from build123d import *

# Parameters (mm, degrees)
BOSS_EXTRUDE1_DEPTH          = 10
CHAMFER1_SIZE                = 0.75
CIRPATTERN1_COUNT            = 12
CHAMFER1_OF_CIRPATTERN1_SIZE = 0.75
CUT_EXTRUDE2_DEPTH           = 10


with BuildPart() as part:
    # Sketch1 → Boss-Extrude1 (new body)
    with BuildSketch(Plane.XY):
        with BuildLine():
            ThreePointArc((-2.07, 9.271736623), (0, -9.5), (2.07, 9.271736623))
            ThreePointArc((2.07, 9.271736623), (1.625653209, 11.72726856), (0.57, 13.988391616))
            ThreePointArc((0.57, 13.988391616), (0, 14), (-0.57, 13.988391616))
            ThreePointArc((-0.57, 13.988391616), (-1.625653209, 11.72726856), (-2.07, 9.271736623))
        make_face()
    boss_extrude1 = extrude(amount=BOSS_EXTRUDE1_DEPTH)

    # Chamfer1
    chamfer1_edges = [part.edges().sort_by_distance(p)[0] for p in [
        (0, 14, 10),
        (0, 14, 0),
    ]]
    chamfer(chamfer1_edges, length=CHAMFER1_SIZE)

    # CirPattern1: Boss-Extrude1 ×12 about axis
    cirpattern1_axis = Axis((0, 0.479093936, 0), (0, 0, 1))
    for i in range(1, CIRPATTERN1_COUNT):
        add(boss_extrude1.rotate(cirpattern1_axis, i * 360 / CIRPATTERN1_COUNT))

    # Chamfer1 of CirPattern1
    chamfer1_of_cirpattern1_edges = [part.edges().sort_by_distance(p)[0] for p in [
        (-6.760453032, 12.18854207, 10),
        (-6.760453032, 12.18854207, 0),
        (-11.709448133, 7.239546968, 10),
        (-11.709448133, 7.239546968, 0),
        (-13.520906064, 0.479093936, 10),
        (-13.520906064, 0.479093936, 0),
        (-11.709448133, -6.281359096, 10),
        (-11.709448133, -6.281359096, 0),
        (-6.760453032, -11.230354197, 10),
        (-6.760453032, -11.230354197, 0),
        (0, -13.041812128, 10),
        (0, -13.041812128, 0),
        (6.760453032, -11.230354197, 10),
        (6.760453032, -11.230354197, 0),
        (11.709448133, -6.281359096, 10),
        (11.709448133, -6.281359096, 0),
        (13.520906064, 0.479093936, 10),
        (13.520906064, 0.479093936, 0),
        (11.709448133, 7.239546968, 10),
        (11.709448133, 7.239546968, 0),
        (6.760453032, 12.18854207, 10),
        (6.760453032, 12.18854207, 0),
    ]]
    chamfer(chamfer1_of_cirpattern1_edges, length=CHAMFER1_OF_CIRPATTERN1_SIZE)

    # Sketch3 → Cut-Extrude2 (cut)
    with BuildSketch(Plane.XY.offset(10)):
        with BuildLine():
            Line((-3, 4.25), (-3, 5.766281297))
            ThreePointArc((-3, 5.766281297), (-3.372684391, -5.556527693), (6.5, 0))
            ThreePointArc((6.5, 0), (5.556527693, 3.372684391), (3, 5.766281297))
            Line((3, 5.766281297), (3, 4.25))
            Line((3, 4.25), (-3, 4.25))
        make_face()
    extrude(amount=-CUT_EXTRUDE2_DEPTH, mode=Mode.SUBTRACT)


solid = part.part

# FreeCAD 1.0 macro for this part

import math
import FreeCAD as App
import Part
import Sketcher
from FreeCAD import Vector
Q = App.Units.Quantity


def edges_at(feature, points):
    """Names of the edges that pass closest to the given points."""
    edges = feature.Shape.Edges
    near = lambda p: min(range(len(edges)), key=lambda i: edges[i].distToShape(Part.Vertex(*p))[0])
    return sorted({f"Edge{near(p) + 1}" for p in points})

doc = App.newDocument("Part")
params = doc.addObject("Spreadsheet::Sheet", "Params")
for row, (alias, value) in enumerate([
    ("sketch1_radius", "14 mm"),
    ("sketch1_radius2", "9.5 mm"),
    ("pad1_length", "10 mm"),
    ("chamfer_size", "0.75 mm"),
    ("chamfer2_size", "0.75 mm"),
    ("sketch2_radius", "6.5 mm"),
    ("sketch2_width", "6 mm"),
    ("pocket1_length", "10 mm"),
], start=1):
    params.set(f"A{row}", alias)
    params.set(f"B{row}", "=" + value)
    params.setAlias(f"B{row}", alias)

body = doc.addObject("PartDesign::Body", "Body")

# Sketch on XY plane
sketch1 = body.newObject("Sketcher::SketchObject", "Sketch")
sketch1.AttachmentSupport = (doc.getObject("XY_Plane"), [""])
sketch1.MapMode = "FlatFace"
sketch1.addGeometry(Part.ArcOfCircle(Part.Circle(Vector(0, 0, 0), Vector(0, 0, 1), 9.5), math.radians(103), math.radians(437)), False)
sketch1.addGeometry(Part.ArcOfCircle(Part.Circle(Vector(-7.6, 8.8, 0), Vector(0, 0, 1), 9.7), math.radians(3), math.radians(32)), False)
sketch1.addGeometry(Part.ArcOfCircle(Part.Circle(Vector(0, 0, 0), Vector(0, 0, 1), 14), math.radians(87.67), math.radians(92.33)), False)
sketch1.addGeometry(Part.ArcOfCircle(Part.Circle(Vector(7.6, 8.8, 0), Vector(0, 0, 1), 9.7), math.radians(148), math.radians(177)), False)
sketch1.addConstraint(Sketcher.Constraint("Coincident", 0, 2, 1, 1))
sketch1.addConstraint(Sketcher.Constraint("Coincident", 1, 2, 2, 1))
sketch1.addConstraint(Sketcher.Constraint("Coincident", 2, 2, 3, 1))
sketch1.addConstraint(Sketcher.Constraint("Coincident", 3, 2, 0, 1))
sketch1.addConstraint(Sketcher.Constraint("Coincident", 0, 3, -1, 1))
sketch1.addConstraint(Sketcher.Constraint("Coincident", 2, 3, -1, 1))
sketch1.addConstraint(Sketcher.Constraint("Equal", 1, 3))
sketch1.addConstraint(Sketcher.Constraint("Symmetric", 1, 3, 3, 3, -2))
sketch1.addConstraint(Sketcher.Constraint("Radius", 2, Q("14 mm")))
sketch1.addConstraint(Sketcher.Constraint("Radius", 0, Q("9.5 mm")))
sketch1.addConstraint(Sketcher.Constraint("DistanceX", 1, 2, 0, 2, Q("1.5 mm")))
sketch1.addConstraint(Sketcher.Constraint("DistanceX", -1, 1, 0, 2, Q("2.07 mm")))
sketch1.addConstraint(Sketcher.Constraint("Radius", 1, Q("9.70744 mm")))
sketch1.setExpression("Constraints[8]", "Params.sketch1_radius")
sketch1.setExpression("Constraints[9]", "Params.sketch1_radius2")
pad1 = body.newObject("PartDesign::Pad", "Pad")
pad1.Profile = sketch1
pad1.setExpression("Length", "Params.pad1_length")
doc.recompute()

chamfer = body.newObject("PartDesign::Chamfer", "Chamfer")
chamfer.Base = (pad1, edges_at(pad1, [(0, 14, 10), (0, 14, 0)]))
chamfer.setExpression("Size", "Params.chamfer_size")
doc.recompute()

datumline = body.newObject("PartDesign::Line", "DatumLine")
datumline.Placement = App.Placement(Vector(0, 0.479094, 0), App.Rotation(Vector(0, 0, 1), Vector(0, 0, 1)))
polarpattern = body.newObject("PartDesign::PolarPattern", "PolarPattern")
polarpattern.Originals = [pad1]
polarpattern.Axis = (datumline, [""])
polarpattern.Angle = 360
polarpattern.Occurrences = 12
body.Tip = polarpattern
doc.recompute()

chamfer2 = body.newObject("PartDesign::Chamfer", "Chamfer001")
chamfer2.Base = (polarpattern, edges_at(polarpattern, [
    (-6.76, 12.189, 10),
    (-6.76, 12.189, 0),
    (-11.709, 7.24, 10),
    (-11.709, 7.24, 0),
    (-13.521, 0.479, 10),
    (-13.521, 0.479, 0),
    (-11.709, -6.281, 10),
    (-11.709, -6.281, 0),
    (-6.76, -11.23, 10),
    (-6.76, -11.23, 0),
    (0, -13.042, 10),
    (0, -13.042, 0),
    (6.76, -11.23, 10),
    (6.76, -11.23, 0),
    (11.709, -6.281, 10),
    (11.709, -6.281, 0),
    (13.521, 0.479, 10),
    (13.521, 0.479, 0),
    (11.709, 7.24, 10),
    (11.709, 7.24, 0),
    (6.76, 12.189, 10),
    (6.76, 12.189, 0),
]))
chamfer2.setExpression("Size", "Params.chamfer2_size")

# Sketch on XY plane
sketch2 = body.newObject("Sketcher::SketchObject", "Sketch001")
sketch2.AttachmentSupport = (doc.getObject("XY_Plane"), [""])
sketch2.MapMode = "FlatFace"
sketch2.AttachmentOffset = App.Placement(Vector(0, 0, 10), App.Rotation())
sketch2.addGeometry(Part.LineSegment(Vector(-3, 4.2, 0), Vector(-3, 5.8, 0)), False)
sketch2.addGeometry(Part.ArcOfCircle(Part.Circle(Vector(0, 0, 0), Vector(0, 0, 1), 6.5), math.radians(117), math.radians(360)), False)
sketch2.addGeometry(Part.ArcOfCircle(Part.Circle(Vector(0, 0, 0), Vector(0, 0, 1), 6.5), math.radians(0), math.radians(63)), False)
sketch2.addGeometry(Part.LineSegment(Vector(3, 5.8, 0), Vector(3, 4.2, 0)), False)
sketch2.addGeometry(Part.LineSegment(Vector(3, 4.2, 0), Vector(-3, 4.2, 0)), False)
sketch2.addConstraint(Sketcher.Constraint("Coincident", 0, 2, 1, 1))
sketch2.addConstraint(Sketcher.Constraint("Tangent", 1, 2, 2, 1))
sketch2.addConstraint(Sketcher.Constraint("Coincident", 2, 2, 3, 1))
sketch2.addConstraint(Sketcher.Constraint("Coincident", 3, 2, 4, 1))
sketch2.addConstraint(Sketcher.Constraint("Coincident", 4, 2, 0, 1))
sketch2.addConstraint(Sketcher.Constraint("Vertical", 0))
sketch2.addConstraint(Sketcher.Constraint("Vertical", 3))
sketch2.addConstraint(Sketcher.Constraint("Horizontal", 4))
sketch2.addConstraint(Sketcher.Constraint("Coincident", 1, 3, -1, 1))
sketch2.addConstraint(Sketcher.Constraint("Equal", 1, 2))
sketch2.addConstraint(Sketcher.Constraint("PointOnObject", 1, 2, -1))
sketch2.addConstraint(Sketcher.Constraint("Horizontal", 0, 2, 2, 2))
sketch2.addConstraint(Sketcher.Constraint("Radius", 1, Q("6.5 mm")))
sketch2.addConstraint(Sketcher.Constraint("DistanceX", 4, 2, 4, 1, Q("6 mm")))
sketch2.addConstraint(Sketcher.Constraint("DistanceY", -1, 1, 3, 2, Q("4.25 mm")))
sketch2.setExpression("Constraints[12]", "Params.sketch2_radius")
sketch2.setExpression("Constraints[13]", "Params.sketch2_width")
pocket1 = body.newObject("PartDesign::Pocket", "Pocket")
pocket1.Profile = sketch2
pocket1.setExpression("Length", "Params.pocket1_length")

doc.recompute()
